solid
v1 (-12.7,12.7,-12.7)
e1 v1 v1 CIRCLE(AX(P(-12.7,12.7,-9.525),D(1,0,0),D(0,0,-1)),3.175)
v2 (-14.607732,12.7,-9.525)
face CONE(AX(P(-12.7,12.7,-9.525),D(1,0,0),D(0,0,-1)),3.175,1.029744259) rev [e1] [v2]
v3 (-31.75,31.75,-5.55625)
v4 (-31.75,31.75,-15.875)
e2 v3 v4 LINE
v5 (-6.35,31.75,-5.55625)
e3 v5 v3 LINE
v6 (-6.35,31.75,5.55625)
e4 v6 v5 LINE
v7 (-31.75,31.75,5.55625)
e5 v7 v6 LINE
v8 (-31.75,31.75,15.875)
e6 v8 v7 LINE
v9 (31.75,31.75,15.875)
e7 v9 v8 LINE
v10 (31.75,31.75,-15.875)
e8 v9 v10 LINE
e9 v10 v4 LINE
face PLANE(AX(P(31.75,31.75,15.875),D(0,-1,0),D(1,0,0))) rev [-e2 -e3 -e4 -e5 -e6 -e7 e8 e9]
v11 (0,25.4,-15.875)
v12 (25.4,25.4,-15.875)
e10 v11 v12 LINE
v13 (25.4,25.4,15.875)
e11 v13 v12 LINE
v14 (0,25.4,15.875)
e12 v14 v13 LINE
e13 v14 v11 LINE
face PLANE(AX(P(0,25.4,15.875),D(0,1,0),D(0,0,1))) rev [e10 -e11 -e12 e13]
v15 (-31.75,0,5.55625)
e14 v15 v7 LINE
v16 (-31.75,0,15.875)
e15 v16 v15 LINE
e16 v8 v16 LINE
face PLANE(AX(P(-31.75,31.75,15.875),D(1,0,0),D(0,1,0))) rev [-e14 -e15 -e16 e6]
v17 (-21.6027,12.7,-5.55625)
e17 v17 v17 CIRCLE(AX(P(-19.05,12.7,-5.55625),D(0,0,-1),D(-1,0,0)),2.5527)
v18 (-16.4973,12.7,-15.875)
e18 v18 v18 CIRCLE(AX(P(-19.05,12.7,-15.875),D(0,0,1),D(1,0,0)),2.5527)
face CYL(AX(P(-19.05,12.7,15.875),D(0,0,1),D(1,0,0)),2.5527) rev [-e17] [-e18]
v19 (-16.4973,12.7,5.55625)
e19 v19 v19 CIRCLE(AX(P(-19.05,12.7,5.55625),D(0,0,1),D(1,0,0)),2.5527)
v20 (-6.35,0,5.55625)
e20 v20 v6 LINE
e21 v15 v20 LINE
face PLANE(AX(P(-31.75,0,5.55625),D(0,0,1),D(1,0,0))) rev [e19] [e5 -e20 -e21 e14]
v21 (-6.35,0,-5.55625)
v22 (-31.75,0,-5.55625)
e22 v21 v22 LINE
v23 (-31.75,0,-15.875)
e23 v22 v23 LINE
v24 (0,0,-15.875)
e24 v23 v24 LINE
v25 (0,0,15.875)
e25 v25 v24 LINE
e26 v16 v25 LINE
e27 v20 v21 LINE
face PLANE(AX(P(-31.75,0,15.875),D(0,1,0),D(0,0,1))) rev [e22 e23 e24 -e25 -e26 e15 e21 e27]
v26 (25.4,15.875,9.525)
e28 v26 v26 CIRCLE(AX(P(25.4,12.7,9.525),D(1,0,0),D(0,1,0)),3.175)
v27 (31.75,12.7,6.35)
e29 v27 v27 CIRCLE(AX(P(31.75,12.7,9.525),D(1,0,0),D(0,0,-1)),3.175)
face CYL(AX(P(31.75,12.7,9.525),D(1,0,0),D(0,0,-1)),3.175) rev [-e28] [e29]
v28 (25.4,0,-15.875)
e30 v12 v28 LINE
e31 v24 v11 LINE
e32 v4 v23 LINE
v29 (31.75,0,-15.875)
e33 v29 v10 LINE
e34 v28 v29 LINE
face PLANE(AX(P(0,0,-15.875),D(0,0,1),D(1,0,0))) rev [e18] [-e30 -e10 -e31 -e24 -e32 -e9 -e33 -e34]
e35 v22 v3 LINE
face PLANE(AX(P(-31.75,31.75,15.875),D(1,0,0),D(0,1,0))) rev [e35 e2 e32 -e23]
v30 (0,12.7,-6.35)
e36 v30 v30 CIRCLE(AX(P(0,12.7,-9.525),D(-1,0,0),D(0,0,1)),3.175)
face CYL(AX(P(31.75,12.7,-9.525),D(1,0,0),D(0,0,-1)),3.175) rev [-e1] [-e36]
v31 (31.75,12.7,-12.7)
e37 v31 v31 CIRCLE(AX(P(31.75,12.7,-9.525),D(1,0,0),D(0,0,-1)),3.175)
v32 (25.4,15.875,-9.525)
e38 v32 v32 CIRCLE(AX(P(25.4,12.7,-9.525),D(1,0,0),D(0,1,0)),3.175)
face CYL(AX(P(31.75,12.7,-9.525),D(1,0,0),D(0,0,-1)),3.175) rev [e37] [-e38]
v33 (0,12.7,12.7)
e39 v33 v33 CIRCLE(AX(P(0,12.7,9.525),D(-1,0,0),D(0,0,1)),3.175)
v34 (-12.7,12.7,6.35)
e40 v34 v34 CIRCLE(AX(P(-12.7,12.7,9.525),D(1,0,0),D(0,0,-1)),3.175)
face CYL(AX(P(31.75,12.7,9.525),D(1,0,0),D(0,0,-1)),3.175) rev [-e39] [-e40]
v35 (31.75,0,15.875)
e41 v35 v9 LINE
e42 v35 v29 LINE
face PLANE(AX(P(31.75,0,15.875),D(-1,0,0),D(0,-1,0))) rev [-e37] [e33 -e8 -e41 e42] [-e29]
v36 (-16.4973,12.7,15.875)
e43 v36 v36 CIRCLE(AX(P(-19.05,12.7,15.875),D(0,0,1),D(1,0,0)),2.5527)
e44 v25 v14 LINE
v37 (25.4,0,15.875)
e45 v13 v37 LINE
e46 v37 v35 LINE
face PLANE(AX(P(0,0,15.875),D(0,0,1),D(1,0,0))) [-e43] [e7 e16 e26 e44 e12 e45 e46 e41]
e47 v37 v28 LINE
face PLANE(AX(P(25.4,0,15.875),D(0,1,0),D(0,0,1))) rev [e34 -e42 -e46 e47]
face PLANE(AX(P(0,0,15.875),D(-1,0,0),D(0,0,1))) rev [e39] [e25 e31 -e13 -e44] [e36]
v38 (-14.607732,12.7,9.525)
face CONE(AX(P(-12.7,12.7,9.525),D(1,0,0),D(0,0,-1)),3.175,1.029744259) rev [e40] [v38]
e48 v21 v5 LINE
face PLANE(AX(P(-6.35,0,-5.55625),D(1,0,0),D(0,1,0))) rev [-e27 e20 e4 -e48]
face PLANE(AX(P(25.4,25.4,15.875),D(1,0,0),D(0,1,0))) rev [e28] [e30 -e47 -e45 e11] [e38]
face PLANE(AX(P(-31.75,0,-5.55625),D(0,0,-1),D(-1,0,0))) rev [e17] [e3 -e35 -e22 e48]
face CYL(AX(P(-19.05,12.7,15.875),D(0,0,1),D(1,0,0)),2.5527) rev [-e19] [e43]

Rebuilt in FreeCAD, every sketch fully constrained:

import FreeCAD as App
import Part
import Sketcher

V = App.Vector
Q = App.Units.Quantity


def add_polygon(sketch, points):
    """Adds a closed chain of lines whose ends are joined by coincident constraints."""
    first, n = sketch.GeometryCount, len(points)
    for a, b in zip(points, points[1:] + points[:1]):
        sketch.addGeometry(Part.LineSegment(App.Vector(*a, 0), App.Vector(*b, 0)), False)
    for i in range(n):
        sketch.addConstraint(Sketcher.Constraint("Coincident", first + i, 2, first + (i + 1) % n, 1))

doc = App.newDocument("Part")
body = doc.addObject("PartDesign::Body", "Body")

# Sketch on XY plane
sketch1 = doc.addObject("Sketcher::SketchObject", "Sketch")
body.addObject(sketch1)
sketch1.AttachmentSupport = (doc.XY_Plane, [""])
sketch1.MapMode = "FlatFace"
add_polygon(sketch1, [(0, 0), (0, 25), (25, 25), (25, 0), (32, 0), (32, 32), (-32, 32), (-32, 0)])  # lines 0-7
sketch1.addConstraint([
    Sketcher.Constraint("Vertical", 0),
    Sketcher.Constraint("Horizontal", 1),
    Sketcher.Constraint("Vertical", 2),
    Sketcher.Constraint("Horizontal", 3),
    Sketcher.Constraint("Vertical", 4),
    Sketcher.Constraint("Horizontal", 5),
    Sketcher.Constraint("Vertical", 6),
    Sketcher.Constraint("Horizontal", 7),
    Sketcher.Constraint("Coincident", 7, 2, -1, 1),
    Sketcher.Constraint("Symmetric", 3, 2, 6, 2, -1, 1),
    Sketcher.Constraint("Equal", 1, 0),
    Sketcher.Constraint("Equal", 7, 4),
    Sketcher.Constraint("DistanceX", 1, 1, 1, 2, Q("1 in")),
    Sketcher.Constraint("DistanceX", 5, 2, 5, 1, Q("2.5 in")),
])
pad1 = doc.addObject("PartDesign::Pad", "Pad")
body.addObject(pad1)
pad1.Profile = sketch1
pad1.Length = Q("1.25 in")
pad1.Midplane = True

# Sketch on XZ plane
sketch2 = doc.addObject("Sketcher::SketchObject", "Sketch001")
body.addObject(sketch2)
sketch2.AttachmentSupport = (doc.XZ_Plane, [""])
sketch2.MapMode = "FlatFace"
sketch2.AttachmentOffset = App.Placement(V(0, 0, -1.25 * 25.4), App.Rotation())
add_polygon(sketch2, [(-32, -6), (-32, 6), (-6, 6), (-6, -6)])  # lines 0-3
sketch2.addConstraint([
    Sketcher.Constraint("Vertical", 0),
    Sketcher.Constraint("Horizontal", 1),
    Sketcher.Constraint("Vertical", 2),
    Sketcher.Constraint("Horizontal", 3),
    Sketcher.Constraint("DistanceX", 1, 1, 1, 2, Q("1 in")),
    Sketcher.Constraint("DistanceY", 0, 1, 0, 2, Q("0.4375 in")),
    Sketcher.Constraint("DistanceX", 0, 2, -1, 1, Q("1.25 in")),
    Sketcher.Constraint("DistanceY", -1, 1, 0, 2, Q("0.21875 in")),
])
pocket1 = doc.addObject("PartDesign::Pocket", "Pocket")
body.addObject(pocket1)
pocket1.Profile = sketch2
pocket1.Type = "ThroughAll"
pocket1.Reversed = True

# Sketch on YZ plane
sketch3 = doc.addObject("Sketcher::SketchObject", "Sketch002")
body.addObject(sketch3)
sketch3.AttachmentSupport = (doc.YZ_Plane, [""])
sketch3.MapMode = "FlatFace"
sketch3.AttachmentOffset = App.Placement(V(0, 0, 1.25 * 25.4), App.Rotation())
sketch3.addGeometry([
    Part.Circle(V(12.7, 9.5, 0), V(0, 0, 1), 3.2),
    Part.Circle(V(12.7, -9.5, 0), V(0, 0, 1), 3.2),
], False)
sketch3.addConstraint([
    Sketcher.Constraint("Equal", 0, 1),
    Sketcher.Constraint("Symmetric", 0, 3, 1, 3, -1),
    Sketcher.Constraint("Diameter", 0, Q("0.25 in")),
    Sketcher.Constraint("DistanceX", -1, 1, 0, 3, Q("0.5 in")),
    Sketcher.Constraint("DistanceY", 1, 3, 0, 3, Q("0.75 in")),
])
doc.recompute()
hole = doc.addObject("PartDesign::Hole", "Hole")
body.addObject(hole)
hole.Profile = sketch3
hole.ThreadType = "None"
hole.Diameter = Q("0.25 in")
hole.DepthType = "Dimension"
hole.Depth = Q("1.75 in")
hole.DrillPoint = "Angled"
hole.DrillPointAngle = 118

# Sketch on XY plane
sketch4 = doc.addObject("Sketcher::SketchObject", "Sketch003")
body.addObject(sketch4)
sketch4.AttachmentSupport = (doc.XY_Plane, [""])
sketch4.MapMode = "FlatFace"
sketch4.AttachmentOffset = App.Placement(V(0, 0, 0.625 * 25.4), App.Rotation())
sketch4.addGeometry(Part.Circle(V(-19.1, 12.7, 0), V(0, 0, 1), 2.6), False)
sketch4.addConstraint([
    Sketcher.Constraint("Diameter", 0, Q("0.201 in")),
    Sketcher.Constraint("DistanceY", -1, 1, 0, 3, Q("0.5 in")),
    Sketcher.Constraint("DistanceX", 0, 3, -1, 1, Q("0.75 in")),
])
doc.recompute()
hole2 = doc.addObject("PartDesign::Hole", "Hole001")
body.addObject(hole2)
hole2.Profile = sketch4
hole2.ThreadType = "None"
hole2.Diameter = Q("0.201 in")
hole2.DepthType = "ThroughAll"

doc.recompute()
